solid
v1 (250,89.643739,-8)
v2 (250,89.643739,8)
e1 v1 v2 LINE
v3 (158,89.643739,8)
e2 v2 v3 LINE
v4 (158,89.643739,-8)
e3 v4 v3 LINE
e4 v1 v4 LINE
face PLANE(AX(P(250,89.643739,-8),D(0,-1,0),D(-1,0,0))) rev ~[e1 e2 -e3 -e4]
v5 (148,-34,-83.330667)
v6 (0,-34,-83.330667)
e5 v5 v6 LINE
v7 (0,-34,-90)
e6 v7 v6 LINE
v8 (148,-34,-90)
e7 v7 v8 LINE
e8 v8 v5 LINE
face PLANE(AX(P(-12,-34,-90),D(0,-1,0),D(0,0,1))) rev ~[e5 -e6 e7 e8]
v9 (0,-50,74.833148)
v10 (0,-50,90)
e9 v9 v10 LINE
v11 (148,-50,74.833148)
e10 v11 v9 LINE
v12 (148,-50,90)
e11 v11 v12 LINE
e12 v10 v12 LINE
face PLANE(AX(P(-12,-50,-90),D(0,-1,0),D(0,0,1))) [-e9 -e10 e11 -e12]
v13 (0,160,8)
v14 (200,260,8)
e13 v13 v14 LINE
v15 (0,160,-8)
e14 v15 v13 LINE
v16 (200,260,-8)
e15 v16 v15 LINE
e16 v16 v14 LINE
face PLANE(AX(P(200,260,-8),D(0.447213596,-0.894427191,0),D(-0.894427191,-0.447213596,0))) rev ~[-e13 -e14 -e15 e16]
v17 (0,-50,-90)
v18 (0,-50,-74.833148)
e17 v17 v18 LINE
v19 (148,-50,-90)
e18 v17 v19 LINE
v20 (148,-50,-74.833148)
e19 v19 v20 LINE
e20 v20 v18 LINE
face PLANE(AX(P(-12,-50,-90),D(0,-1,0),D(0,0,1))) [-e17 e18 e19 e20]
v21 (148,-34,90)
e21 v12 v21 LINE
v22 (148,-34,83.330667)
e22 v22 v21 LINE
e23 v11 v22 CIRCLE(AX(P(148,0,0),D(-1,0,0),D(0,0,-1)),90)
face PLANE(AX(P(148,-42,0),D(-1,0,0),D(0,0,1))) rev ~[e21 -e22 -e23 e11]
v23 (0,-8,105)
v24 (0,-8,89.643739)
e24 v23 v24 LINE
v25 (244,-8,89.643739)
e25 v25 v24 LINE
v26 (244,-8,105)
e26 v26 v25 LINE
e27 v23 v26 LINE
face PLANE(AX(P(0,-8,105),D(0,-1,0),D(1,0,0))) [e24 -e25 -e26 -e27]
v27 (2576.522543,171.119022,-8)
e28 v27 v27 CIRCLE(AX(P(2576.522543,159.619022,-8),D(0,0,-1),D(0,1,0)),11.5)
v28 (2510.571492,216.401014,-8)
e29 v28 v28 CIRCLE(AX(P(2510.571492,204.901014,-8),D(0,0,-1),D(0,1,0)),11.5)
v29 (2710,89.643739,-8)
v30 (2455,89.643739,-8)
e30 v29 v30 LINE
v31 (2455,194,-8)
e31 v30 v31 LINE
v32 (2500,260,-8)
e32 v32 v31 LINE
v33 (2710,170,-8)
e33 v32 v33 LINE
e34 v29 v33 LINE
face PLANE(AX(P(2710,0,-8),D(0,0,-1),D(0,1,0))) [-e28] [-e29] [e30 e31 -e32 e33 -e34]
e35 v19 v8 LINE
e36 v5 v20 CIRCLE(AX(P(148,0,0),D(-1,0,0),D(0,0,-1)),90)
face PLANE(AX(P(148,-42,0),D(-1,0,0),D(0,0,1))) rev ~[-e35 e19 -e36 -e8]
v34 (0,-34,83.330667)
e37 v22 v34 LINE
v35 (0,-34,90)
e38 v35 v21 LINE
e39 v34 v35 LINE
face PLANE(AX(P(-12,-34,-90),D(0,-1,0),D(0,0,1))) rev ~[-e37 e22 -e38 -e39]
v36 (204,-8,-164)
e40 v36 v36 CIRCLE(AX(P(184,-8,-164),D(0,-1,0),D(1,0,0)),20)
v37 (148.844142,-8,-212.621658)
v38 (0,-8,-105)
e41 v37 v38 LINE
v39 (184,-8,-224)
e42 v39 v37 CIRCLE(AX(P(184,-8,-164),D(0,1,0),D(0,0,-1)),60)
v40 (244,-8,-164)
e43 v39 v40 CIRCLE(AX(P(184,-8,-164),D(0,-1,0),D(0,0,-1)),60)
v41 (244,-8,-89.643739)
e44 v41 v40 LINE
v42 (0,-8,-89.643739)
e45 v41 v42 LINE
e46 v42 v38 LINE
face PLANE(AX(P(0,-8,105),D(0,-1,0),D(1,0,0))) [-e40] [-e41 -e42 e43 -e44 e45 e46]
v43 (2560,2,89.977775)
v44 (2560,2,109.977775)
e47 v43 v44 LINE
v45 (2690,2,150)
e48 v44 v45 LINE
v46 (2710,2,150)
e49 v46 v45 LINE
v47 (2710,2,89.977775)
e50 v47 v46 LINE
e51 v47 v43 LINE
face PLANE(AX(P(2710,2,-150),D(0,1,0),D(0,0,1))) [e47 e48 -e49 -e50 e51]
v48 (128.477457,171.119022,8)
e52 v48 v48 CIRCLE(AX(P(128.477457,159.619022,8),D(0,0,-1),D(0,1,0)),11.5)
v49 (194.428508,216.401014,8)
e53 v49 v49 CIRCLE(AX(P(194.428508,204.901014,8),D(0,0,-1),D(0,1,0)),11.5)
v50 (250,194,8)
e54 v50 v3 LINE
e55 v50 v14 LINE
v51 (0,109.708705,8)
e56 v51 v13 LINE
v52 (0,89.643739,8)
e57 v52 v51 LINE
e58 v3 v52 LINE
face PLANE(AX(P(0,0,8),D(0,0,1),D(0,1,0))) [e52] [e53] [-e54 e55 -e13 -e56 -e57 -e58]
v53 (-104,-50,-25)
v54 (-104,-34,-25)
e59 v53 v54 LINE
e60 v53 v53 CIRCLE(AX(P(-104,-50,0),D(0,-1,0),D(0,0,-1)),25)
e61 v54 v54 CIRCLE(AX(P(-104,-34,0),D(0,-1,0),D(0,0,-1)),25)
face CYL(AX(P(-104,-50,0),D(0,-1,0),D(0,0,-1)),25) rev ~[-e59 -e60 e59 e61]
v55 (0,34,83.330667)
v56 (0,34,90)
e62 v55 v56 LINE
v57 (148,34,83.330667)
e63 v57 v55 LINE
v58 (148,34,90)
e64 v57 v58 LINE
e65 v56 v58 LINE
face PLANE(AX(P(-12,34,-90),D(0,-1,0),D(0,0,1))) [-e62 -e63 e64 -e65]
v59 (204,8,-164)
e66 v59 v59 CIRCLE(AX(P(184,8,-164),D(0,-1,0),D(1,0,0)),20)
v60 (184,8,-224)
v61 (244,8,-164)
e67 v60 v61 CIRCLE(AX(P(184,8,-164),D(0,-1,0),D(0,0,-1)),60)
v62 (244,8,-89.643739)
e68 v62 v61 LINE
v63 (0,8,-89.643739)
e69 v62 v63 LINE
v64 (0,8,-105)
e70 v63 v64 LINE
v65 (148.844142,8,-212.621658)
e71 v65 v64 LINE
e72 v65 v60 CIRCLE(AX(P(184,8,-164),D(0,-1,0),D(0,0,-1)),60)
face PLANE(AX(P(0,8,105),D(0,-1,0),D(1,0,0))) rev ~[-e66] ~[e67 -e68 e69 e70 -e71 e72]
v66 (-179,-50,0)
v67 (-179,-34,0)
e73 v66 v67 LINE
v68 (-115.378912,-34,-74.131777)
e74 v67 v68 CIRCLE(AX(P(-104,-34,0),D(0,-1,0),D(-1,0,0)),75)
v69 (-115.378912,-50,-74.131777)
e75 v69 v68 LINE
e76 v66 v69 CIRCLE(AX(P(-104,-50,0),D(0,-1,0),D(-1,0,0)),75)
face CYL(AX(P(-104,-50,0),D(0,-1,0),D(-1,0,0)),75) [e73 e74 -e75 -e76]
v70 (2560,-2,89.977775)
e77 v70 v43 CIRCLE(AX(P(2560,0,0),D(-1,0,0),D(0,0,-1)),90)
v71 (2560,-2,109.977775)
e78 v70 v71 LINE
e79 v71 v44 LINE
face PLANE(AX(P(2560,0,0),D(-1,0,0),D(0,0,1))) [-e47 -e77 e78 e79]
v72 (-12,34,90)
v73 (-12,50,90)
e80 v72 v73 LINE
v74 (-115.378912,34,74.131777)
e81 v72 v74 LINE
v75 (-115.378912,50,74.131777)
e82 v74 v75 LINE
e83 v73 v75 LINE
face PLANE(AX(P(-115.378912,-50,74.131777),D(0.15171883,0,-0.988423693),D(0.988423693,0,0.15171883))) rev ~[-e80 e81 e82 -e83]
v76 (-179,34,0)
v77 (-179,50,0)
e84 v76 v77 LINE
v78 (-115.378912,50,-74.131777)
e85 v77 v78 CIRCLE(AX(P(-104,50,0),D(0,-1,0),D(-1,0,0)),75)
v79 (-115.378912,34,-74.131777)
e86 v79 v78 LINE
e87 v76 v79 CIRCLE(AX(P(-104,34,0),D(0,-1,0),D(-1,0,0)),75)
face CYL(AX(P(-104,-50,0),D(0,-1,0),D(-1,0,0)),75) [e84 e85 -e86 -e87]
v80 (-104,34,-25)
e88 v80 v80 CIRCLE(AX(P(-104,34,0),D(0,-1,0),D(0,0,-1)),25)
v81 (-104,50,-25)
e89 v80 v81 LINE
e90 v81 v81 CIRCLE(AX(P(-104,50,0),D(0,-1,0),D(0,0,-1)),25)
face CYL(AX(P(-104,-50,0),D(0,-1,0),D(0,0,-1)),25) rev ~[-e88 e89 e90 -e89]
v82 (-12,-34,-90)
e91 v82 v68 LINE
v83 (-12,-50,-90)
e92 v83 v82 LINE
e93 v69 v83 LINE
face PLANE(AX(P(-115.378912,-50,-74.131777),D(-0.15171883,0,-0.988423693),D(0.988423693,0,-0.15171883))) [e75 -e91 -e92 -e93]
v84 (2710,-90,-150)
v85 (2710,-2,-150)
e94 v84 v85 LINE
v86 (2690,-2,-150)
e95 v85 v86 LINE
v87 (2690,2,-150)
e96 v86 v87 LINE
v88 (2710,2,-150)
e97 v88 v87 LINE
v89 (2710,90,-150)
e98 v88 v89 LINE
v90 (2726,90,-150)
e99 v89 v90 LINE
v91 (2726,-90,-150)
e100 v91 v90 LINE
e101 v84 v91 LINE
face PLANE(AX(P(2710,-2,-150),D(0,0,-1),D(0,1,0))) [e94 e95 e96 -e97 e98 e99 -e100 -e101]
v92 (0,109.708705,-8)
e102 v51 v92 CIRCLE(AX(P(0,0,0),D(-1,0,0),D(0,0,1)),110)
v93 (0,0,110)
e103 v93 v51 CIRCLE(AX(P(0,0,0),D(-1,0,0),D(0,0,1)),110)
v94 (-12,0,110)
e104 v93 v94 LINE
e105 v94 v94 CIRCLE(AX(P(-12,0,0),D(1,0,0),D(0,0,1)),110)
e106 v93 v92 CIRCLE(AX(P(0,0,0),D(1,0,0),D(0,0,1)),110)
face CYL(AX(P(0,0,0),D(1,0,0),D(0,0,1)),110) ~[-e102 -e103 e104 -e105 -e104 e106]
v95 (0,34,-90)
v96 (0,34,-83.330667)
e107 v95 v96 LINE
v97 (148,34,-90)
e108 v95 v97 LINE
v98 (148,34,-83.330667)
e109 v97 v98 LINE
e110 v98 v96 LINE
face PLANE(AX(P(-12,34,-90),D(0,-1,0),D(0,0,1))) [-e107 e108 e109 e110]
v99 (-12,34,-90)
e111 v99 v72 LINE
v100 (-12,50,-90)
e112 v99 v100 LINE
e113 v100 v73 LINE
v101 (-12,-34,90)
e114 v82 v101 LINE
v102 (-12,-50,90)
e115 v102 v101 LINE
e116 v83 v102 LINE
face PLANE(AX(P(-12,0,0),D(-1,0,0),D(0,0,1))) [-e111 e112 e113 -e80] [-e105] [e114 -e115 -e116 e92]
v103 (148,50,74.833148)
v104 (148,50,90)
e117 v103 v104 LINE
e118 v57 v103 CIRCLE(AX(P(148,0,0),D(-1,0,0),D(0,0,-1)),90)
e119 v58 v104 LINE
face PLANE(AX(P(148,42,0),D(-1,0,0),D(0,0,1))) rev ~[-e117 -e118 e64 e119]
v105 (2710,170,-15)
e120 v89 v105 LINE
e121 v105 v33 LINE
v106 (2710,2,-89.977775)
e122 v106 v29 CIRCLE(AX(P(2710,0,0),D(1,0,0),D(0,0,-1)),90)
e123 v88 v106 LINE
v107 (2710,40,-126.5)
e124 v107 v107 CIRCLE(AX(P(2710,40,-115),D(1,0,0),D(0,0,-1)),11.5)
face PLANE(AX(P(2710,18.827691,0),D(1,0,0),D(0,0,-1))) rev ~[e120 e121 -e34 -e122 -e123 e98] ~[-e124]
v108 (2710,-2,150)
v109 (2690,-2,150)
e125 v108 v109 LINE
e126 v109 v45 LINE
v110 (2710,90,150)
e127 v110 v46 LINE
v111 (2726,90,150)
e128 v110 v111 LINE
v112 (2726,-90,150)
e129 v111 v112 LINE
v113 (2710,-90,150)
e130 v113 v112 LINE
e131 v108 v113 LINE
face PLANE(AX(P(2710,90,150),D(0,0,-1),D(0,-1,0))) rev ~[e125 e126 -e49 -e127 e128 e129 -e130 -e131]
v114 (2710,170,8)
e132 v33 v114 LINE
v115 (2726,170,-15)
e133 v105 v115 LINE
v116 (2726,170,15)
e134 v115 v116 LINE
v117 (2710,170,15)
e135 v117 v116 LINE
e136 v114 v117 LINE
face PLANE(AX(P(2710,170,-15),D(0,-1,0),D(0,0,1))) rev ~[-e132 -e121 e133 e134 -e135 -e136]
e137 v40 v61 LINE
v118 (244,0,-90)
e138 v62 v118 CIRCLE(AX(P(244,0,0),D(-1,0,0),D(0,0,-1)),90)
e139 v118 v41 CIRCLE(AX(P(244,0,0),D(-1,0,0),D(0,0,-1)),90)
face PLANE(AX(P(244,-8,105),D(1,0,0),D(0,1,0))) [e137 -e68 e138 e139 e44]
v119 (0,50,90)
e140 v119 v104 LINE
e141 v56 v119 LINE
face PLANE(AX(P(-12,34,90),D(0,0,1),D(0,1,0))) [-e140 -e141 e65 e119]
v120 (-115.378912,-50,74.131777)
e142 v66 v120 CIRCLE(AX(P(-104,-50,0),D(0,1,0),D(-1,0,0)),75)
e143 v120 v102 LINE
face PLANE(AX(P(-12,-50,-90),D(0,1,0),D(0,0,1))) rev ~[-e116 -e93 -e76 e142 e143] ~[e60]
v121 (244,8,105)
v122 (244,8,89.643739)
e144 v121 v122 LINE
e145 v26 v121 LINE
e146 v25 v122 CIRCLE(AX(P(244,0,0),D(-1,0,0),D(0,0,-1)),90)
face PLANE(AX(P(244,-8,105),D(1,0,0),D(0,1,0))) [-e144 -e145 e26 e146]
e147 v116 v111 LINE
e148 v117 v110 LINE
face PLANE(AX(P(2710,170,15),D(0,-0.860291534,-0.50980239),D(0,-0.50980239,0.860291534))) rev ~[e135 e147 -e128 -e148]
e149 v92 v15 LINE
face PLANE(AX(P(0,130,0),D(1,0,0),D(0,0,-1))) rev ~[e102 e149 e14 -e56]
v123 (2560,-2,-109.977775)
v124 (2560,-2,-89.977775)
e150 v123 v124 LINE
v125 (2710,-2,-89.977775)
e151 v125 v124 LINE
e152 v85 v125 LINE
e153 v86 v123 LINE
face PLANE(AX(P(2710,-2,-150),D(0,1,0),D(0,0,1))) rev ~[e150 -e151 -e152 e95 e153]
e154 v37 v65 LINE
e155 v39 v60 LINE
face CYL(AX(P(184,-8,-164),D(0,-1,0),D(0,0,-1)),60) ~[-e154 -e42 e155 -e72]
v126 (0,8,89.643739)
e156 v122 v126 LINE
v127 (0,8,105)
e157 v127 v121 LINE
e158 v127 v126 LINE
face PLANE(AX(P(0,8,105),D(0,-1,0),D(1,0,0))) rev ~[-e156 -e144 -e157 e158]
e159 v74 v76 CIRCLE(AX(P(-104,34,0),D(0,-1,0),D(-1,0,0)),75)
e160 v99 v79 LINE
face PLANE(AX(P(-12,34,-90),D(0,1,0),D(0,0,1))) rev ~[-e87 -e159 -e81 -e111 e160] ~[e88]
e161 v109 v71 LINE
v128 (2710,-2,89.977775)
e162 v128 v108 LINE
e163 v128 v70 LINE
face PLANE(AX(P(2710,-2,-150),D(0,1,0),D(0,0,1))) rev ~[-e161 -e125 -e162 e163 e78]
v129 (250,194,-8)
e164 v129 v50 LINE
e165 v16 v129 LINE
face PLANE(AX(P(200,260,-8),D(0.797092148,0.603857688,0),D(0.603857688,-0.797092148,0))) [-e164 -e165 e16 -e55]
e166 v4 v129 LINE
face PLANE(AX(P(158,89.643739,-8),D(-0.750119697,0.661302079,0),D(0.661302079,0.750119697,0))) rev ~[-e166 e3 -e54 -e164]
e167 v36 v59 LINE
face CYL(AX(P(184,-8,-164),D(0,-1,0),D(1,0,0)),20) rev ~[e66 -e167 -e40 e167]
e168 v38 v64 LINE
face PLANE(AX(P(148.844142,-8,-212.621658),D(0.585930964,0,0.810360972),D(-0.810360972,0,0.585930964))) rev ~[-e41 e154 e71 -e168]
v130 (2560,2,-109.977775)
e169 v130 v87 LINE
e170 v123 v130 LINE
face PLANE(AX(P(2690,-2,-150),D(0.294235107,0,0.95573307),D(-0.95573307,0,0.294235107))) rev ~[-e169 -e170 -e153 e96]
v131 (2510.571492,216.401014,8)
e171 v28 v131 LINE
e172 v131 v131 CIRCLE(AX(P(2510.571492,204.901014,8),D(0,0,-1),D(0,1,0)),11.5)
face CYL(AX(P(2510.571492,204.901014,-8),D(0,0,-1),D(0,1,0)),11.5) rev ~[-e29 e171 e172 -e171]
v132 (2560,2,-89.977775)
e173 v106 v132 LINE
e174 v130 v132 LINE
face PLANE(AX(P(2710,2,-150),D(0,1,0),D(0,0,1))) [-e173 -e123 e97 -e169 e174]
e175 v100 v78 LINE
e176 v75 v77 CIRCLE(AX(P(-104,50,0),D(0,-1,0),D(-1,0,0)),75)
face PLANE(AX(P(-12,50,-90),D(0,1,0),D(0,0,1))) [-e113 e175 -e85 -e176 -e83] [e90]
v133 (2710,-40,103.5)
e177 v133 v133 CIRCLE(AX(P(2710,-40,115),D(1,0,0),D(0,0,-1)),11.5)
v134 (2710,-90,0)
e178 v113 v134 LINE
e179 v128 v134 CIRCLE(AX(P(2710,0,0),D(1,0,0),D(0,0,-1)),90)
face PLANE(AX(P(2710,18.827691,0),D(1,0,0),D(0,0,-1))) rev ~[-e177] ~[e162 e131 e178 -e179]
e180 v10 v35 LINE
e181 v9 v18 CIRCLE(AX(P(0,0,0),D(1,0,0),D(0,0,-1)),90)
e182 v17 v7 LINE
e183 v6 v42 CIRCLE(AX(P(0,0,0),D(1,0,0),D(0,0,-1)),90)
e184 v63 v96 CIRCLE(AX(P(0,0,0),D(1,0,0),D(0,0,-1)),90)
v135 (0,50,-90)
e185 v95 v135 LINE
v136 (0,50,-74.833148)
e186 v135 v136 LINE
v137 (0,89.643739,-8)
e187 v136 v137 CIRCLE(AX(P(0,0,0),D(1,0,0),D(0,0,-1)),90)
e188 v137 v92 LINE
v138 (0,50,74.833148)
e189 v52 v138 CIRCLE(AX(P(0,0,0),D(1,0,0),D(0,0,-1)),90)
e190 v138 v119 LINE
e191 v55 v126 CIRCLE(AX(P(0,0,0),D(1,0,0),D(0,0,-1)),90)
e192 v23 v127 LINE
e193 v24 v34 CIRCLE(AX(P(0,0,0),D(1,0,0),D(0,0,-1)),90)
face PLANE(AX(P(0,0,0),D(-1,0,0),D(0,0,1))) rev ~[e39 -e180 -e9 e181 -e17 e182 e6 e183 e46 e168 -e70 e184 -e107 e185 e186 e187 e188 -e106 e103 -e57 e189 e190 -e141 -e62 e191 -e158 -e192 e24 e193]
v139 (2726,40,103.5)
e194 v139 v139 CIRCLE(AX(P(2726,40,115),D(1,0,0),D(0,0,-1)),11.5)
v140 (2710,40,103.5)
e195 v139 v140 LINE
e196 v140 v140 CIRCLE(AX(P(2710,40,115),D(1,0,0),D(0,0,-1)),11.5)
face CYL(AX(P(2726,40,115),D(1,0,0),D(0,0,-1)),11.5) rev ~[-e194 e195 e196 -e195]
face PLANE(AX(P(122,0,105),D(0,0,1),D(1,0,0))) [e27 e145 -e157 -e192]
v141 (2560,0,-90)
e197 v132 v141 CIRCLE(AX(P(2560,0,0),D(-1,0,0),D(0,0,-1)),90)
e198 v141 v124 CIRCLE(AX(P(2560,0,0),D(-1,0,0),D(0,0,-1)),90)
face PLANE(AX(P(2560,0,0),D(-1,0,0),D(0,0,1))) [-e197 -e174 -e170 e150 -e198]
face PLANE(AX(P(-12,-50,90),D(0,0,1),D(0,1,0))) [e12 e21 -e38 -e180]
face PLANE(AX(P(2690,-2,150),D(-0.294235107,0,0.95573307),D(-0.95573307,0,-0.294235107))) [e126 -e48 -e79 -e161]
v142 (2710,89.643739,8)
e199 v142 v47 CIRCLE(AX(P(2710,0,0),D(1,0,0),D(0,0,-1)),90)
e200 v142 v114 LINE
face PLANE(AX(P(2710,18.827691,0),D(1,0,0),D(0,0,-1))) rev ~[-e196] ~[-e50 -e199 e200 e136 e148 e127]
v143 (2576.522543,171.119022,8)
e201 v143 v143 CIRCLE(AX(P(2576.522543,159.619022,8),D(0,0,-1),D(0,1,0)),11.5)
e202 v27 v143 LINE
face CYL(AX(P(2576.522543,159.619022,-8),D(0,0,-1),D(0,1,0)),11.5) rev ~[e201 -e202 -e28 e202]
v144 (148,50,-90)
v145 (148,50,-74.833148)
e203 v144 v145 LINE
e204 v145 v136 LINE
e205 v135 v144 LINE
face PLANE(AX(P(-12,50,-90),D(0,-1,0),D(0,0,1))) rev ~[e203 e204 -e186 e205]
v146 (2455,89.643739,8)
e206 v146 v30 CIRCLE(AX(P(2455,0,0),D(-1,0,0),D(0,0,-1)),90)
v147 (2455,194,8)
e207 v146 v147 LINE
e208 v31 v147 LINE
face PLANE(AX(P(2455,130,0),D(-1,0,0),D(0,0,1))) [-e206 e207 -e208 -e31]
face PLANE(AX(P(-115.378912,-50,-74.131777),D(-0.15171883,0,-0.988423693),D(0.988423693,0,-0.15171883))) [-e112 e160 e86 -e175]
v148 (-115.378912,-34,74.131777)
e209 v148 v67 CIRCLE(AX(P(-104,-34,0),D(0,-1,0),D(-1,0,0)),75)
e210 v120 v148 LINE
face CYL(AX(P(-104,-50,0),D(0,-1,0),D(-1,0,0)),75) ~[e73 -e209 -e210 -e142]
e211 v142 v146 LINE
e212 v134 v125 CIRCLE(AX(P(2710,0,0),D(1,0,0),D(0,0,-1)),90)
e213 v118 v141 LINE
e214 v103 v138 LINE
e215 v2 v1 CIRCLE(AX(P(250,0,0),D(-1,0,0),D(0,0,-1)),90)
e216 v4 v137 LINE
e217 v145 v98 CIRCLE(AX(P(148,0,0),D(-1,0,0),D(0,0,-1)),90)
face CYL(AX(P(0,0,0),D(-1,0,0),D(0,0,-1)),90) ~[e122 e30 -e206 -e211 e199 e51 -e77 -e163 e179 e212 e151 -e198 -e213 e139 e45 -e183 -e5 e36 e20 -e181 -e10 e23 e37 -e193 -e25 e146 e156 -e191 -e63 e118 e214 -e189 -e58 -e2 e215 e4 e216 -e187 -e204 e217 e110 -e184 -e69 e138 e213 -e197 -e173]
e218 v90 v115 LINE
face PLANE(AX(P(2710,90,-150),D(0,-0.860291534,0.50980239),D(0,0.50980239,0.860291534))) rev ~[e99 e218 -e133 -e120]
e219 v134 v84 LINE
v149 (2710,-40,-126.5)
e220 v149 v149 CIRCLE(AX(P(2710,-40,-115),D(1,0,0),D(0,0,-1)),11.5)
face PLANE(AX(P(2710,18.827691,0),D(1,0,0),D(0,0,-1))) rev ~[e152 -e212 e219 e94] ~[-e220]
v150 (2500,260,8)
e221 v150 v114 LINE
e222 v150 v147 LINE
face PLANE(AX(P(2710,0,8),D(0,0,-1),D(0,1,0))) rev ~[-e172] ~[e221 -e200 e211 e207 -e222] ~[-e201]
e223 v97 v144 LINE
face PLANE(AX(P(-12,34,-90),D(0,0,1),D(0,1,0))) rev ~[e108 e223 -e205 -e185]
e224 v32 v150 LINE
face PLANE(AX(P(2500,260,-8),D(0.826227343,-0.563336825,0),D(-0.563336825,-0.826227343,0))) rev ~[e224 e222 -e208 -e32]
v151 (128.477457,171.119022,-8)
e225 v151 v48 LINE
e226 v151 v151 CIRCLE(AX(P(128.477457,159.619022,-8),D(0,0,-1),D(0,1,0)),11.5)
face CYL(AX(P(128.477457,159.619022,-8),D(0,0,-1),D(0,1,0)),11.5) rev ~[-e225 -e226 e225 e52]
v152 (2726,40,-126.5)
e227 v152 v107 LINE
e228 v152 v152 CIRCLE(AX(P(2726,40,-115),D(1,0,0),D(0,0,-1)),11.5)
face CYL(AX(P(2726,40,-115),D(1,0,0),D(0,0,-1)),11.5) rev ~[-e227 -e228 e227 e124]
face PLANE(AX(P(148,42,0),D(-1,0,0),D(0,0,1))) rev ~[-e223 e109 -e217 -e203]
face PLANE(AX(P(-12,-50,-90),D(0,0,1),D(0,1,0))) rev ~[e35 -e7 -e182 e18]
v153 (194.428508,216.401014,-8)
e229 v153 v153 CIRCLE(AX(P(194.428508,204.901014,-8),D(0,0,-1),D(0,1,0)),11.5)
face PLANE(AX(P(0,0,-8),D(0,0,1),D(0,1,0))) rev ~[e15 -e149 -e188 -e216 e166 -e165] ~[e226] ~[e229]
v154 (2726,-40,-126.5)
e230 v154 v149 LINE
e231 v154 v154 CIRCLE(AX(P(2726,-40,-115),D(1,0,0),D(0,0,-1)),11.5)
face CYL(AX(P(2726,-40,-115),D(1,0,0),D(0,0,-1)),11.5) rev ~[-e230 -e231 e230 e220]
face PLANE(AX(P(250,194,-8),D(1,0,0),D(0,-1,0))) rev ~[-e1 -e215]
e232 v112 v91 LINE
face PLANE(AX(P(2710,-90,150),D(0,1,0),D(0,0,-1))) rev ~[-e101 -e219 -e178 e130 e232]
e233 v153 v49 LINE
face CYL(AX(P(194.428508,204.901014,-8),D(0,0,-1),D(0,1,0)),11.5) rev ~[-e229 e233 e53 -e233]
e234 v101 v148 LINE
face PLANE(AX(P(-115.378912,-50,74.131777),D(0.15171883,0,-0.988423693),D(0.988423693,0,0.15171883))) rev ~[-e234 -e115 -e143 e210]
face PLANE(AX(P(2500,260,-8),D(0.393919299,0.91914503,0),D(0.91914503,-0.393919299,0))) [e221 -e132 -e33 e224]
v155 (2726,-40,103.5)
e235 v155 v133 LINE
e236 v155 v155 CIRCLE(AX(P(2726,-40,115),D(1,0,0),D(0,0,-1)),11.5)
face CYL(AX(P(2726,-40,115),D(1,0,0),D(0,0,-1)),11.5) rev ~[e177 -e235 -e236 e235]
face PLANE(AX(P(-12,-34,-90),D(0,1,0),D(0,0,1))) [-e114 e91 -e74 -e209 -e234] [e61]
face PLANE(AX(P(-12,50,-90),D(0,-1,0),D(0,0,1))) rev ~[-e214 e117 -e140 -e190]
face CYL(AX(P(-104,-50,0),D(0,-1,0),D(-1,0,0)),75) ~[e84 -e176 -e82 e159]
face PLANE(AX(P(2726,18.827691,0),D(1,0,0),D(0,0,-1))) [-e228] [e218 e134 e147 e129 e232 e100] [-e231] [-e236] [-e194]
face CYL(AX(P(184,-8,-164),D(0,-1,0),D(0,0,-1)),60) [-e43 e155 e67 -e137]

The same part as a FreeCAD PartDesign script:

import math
import FreeCAD as App
import Part
import Sketcher

V = App.Vector
Q = App.Units.Quantity


def add_polygon(sketch, points):
    """Adds a closed chain of lines whose ends are joined by coincident constraints."""
    first, n = sketch.GeometryCount, len(points)
    for a, b in zip(points, points[1:] + points[:1]):
        sketch.addGeometry(Part.LineSegment(App.Vector(*a, 0), App.Vector(*b, 0)), False)
    for i in range(n):
        sketch.addConstraint(Sketcher.Constraint("Coincident", first + i, 2, first + (i + 1) % n, 1))

doc = App.newDocument("Part")
body = doc.addObject("PartDesign::Body", "Body")

# Sketch on YZ plane
sketch1 = body.newObject("Sketcher::SketchObject", "Sketch")
sketch1.AttachmentSupport = (doc.getObject("YZ_Plane"), [""])
sketch1.MapMode = "FlatFace"
sketch1.addGeometry(Part.Circle(V(0, 0, 0), V(0, 0, 1), 90), False)
sketch1.addConstraint(Sketcher.Constraint("Coincident", 0, 3, -1, 1))
sketch1.addConstraint(Sketcher.Constraint("Diameter", 0, Q("180 mm")))
pad1 = body.newObject("PartDesign::Pad", "Pad")
pad1.Profile = sketch1
pad1.Length = 2710

# Sketch on YZ plane
sketch2 = body.newObject("Sketcher::SketchObject", "Sketch001")
sketch2.AttachmentSupport = (doc.getObject("YZ_Plane"), [""])
sketch2.MapMode = "FlatFace"
sketch2.AttachmentOffset = App.Placement(V(0, 0, 2710), App.Rotation())
add_polygon(sketch2, [(-90, 150), (-90, -150), (90, -150), (170, -15), (170, 15), (90, 150)])  # lines 0-5
sketch2.addConstraint(Sketcher.Constraint("Vertical", 0))
sketch2.addConstraint(Sketcher.Constraint("Horizontal", 1))
sketch2.addConstraint(Sketcher.Constraint("Vertical", 3))
sketch2.addConstraint(Sketcher.Constraint("Horizontal", 5))
sketch2.addConstraint(Sketcher.Constraint("Symmetric", 0, 2, 4, 2, -1, 1))
sketch2.addConstraint(Sketcher.Constraint("Vertical", 1, 2, 4, 2))
sketch2.addConstraint(Sketcher.Constraint("Equal", 2, 4))
sketch2.addConstraint(Sketcher.Constraint("DistanceX", 1, 1, 1, 2, Q("180 mm")))
sketch2.addConstraint(Sketcher.Constraint("DistanceY", 0, 2, 0, 1, Q("300 mm")))
sketch2.addConstraint(Sketcher.Constraint("DistanceY", 3, 1, 3, 2, Q("30 mm")))
sketch2.addConstraint(Sketcher.Constraint("DistanceX", -1, 1, 2, 2, Q("170 mm")))
pad2 = body.newObject("PartDesign::Pad", "Pad001")
pad2.Profile = sketch2
pad2.Length = 16

# Sketch on YZ plane
sketch3 = body.newObject("Sketcher::SketchObject", "Sketch002")
sketch3.AttachmentSupport = (doc.getObject("YZ_Plane"), [""])
sketch3.MapMode = "FlatFace"
sketch3.AttachmentOffset = App.Placement(V(0, 0, 2726), App.Rotation())
sketch3.addGeometry(Part.Circle(V(-40, -115, 0), V(0, 0, 1), 12), False)
sketch3.addGeometry(Part.Circle(V(40, -115, 0), V(0, 0, 1), 12), False)
sketch3.addGeometry(Part.Circle(V(40, 115, 0), V(0, 0, 1), 12), False)
sketch3.addGeometry(Part.Circle(V(-40, 115, 0), V(0, 0, 1), 12), False)
sketch3.addConstraint(Sketcher.Constraint("Equal", 0, 1))
sketch3.addConstraint(Sketcher.Constraint("Equal", 1, 2))
sketch3.addConstraint(Sketcher.Constraint("Equal", 2, 3))
sketch3.addConstraint(Sketcher.Constraint("Symmetric", 0, 3, 2, 3, -1, 1))
sketch3.addConstraint(Sketcher.Constraint("Symmetric", 1, 3, 3, 3, -1, 1))
sketch3.addConstraint(Sketcher.Constraint("Symmetric", 0, 3, 1, 3, -2))
sketch3.addConstraint(Sketcher.Constraint("Diameter", 0, Q("23 mm")))
sketch3.addConstraint(Sketcher.Constraint("DistanceX", 0, 3, -1, 1, Q("40 mm")))
sketch3.addConstraint(Sketcher.Constraint("DistanceY", 0, 3, -1, 1, Q("115 mm")))
pocket1 = body.newObject("PartDesign::Pocket", "Pocket")
pocket1.Profile = sketch3
pocket1.Type = "ThroughAll"

# Sketch on YZ plane
sketch4 = body.newObject("Sketcher::SketchObject", "Sketch003")
sketch4.AttachmentSupport = (doc.getObject("YZ_Plane"), [""])
sketch4.MapMode = "FlatFace"
sketch4.AttachmentOffset = App.Placement(V(0, 0, 2710), App.Rotation())
add_polygon(sketch4, [(2, -150), (-2, -150), (-2, 150), (2, 150)])  # lines 0-3
sketch4.addConstraint(Sketcher.Constraint("Horizontal", 0))
sketch4.addConstraint(Sketcher.Constraint("Vertical", 1))
sketch4.addConstraint(Sketcher.Constraint("Horizontal", 2))
sketch4.addConstraint(Sketcher.Constraint("Vertical", 3))
sketch4.addConstraint(Sketcher.Constraint("Symmetric", 0, 2, 2, 2, -1, 1))
sketch4.addConstraint(Sketcher.Constraint("DistanceX", 0, 2, 0, 1, Q("4 mm")))
sketch4.addConstraint(Sketcher.Constraint("DistanceY", 1, 1, 1, 2, Q("300 mm")))
pad3 = body.newObject("PartDesign::Pad", "Pad002")
pad3.Profile = sketch4
pad3.Length = 150
pad3.Reversed = True

# Sketch on XZ plane
sketch5 = body.newObject("Sketcher::SketchObject", "Sketch004")
sketch5.AttachmentSupport = (doc.getObject("XZ_Plane"), [""])
sketch5.MapMode = "FlatFace"
sketch5.AttachmentOffset = App.Placement(V(0, 0, 2), App.Rotation())
add_polygon(sketch5, [(2560, 110), (2690, 150), (2560, 150)])  # lines 0-2
add_polygon(sketch5, [(2560, -110), (2560, -150), (2690, -150)])  # lines 3-5
sketch5.addConstraint(Sketcher.Constraint("Horizontal", 1))
sketch5.addConstraint(Sketcher.Constraint("Vertical", 2))
sketch5.addConstraint(Sketcher.Constraint("Vertical", 3))
sketch5.addConstraint(Sketcher.Constraint("Horizontal", 4))
sketch5.addConstraint(Sketcher.Constraint("Symmetric", 1, 2, 3, 2, -1))
sketch5.addConstraint(Sketcher.Constraint("Vertical", 0, 2, 4, 2))
sketch5.addConstraint(Sketcher.Constraint("Equal", 2, 3))
sketch5.addConstraint(Sketcher.Constraint("DistanceX", 1, 2, 1, 1, Q("130 mm")))
sketch5.addConstraint(Sketcher.Constraint("DistanceX", -1, 1, 0, 2, Q("2690 mm")))
sketch5.addConstraint(Sketcher.Constraint("DistanceY", -1, 1, 0, 2, Q("150 mm")))
sketch5.addConstraint(Sketcher.Constraint("DistanceY", 2, 2, 2, 1, Q("40.022225 mm")))
pocket2 = body.newObject("PartDesign::Pocket", "Pocket001")
pocket2.Profile = sketch5
pocket2.Type = "ThroughAll"

# Sketch on YZ plane
sketch6 = body.newObject("Sketcher::SketchObject", "Sketch005")
sketch6.AttachmentSupport = (doc.getObject("YZ_Plane"), [""])
sketch6.MapMode = "FlatFace"
sketch6.AttachmentOffset = App.Placement(V(0, 0, 2710), App.Rotation())
add_polygon(sketch6, [(260, -8), (0, -8), (0, 8), (260, 8)])  # lines 0-3
sketch6.addConstraint(Sketcher.Constraint("Horizontal", 0))
sketch6.addConstraint(Sketcher.Constraint("Vertical", 1))
sketch6.addConstraint(Sketcher.Constraint("Horizontal", 2))
sketch6.addConstraint(Sketcher.Constraint("Vertical", 3))
sketch6.addConstraint(Sketcher.Constraint("Symmetric", 0, 2, 1, 2, -1, 1))
sketch6.addConstraint(Sketcher.Constraint("DistanceX", 0, 2, 0, 1, Q("260 mm")))
sketch6.addConstraint(Sketcher.Constraint("DistanceY", 1, 1, 1, 2, Q("16 mm")))
pad4 = body.newObject("PartDesign::Pad", "Pad003")
pad4.Profile = sketch6
pad4.Length = 255
pad4.Reversed = True

# Sketch on XY plane
sketch7 = body.newObject("Sketcher::SketchObject", "Sketch006")
sketch7.AttachmentSupport = (doc.getObject("XY_Plane"), [""])
sketch7.MapMode = "FlatFace"
sketch7.AttachmentOffset = App.Placement(V(0, 0, -8), App.Rotation())
add_polygon(sketch7, [(2500, 260), (2710, 260), (2710, 170)])  # lines 0-2
sketch7.addConstraint(Sketcher.Constraint("Horizontal", 0))
sketch7.addConstraint(Sketcher.Constraint("Vertical", 1))
sketch7.addConstraint(Sketcher.Constraint("DistanceX", 0, 1, 0, 2, Q("210 mm")))
sketch7.addConstraint(Sketcher.Constraint("DistanceY", 1, 2, 1, 1, Q("90 mm")))
sketch7.addConstraint(Sketcher.Constraint("DistanceX", -1, 1, 0, 2, Q("2710 mm")))
sketch7.addConstraint(Sketcher.Constraint("DistanceY", -1, 1, 0, 2, Q("260 mm")))
pocket3 = body.newObject("PartDesign::Pocket", "Pocket002")
pocket3.Profile = sketch7
pocket3.Type = "ThroughAll"
pocket3.Reversed = True

# Sketch on XY plane
sketch8 = body.newObject("Sketcher::SketchObject", "Sketch007")
sketch8.AttachmentSupport = (doc.getObject("XY_Plane"), [""])
sketch8.MapMode = "FlatFace"
sketch8.AttachmentOffset = App.Placement(V(0, 0, -8), App.Rotation())
add_polygon(sketch8, [(2500, 260), (2455, 194), (2455, 260)])  # lines 0-2
sketch8.addConstraint(Sketcher.Constraint("Vertical", 1))
sketch8.addConstraint(Sketcher.Constraint("Horizontal", 2))
sketch8.addConstraint(Sketcher.Constraint("DistanceX", 2, 1, 2, 2, Q("45 mm")))
sketch8.addConstraint(Sketcher.Constraint("DistanceY", 1, 1, 1, 2, Q("66 mm")))
sketch8.addConstraint(Sketcher.Constraint("DistanceX", -1, 1, 0, 2, Q("2455 mm")))
sketch8.addConstraint(Sketcher.Constraint("DistanceY", -1, 1, 0, 2, Q("194 mm")))
pocket4 = body.newObject("PartDesign::Pocket", "Pocket003")
pocket4.Profile = sketch8
pocket4.Type = "ThroughAll"
pocket4.Reversed = True

# Sketch on XY plane
sketch9 = body.newObject("Sketcher::SketchObject", "Sketch008")
sketch9.AttachmentSupport = (doc.getObject("XY_Plane"), [""])
sketch9.MapMode = "FlatFace"
sketch9.AttachmentOffset = App.Placement(V(0, 0, -8), App.Rotation())
sketch9.addGeometry(Part.Circle(V(2577, 160, 0), V(0, 0, 1), 12), False)
sketch9.addGeometry(Part.Circle(V(2511, 205, 0), V(0, 0, 1), 12), False)
sketch9.addConstraint(Sketcher.Constraint("Equal", 0, 1))
sketch9.addConstraint(Sketcher.Constraint("Diameter", 0, Q("23 mm")))
sketch9.addConstraint(Sketcher.Constraint("DistanceY", -1, 1, 0, 3, Q("159.619022 mm")))
sketch9.addConstraint(Sketcher.Constraint("DistanceX", -1, 1, 1, 3, Q("2510.571492 mm")))
sketch9.addConstraint(Sketcher.Constraint("DistanceX", 1, 3, 0, 3, Q("65.951052 mm")))
sketch9.addConstraint(Sketcher.Constraint("DistanceY", 0, 3, 1, 3, Q("45.281992 mm")))
pocket5 = body.newObject("PartDesign::Pocket", "Pocket004")
pocket5.Profile = sketch9
pocket5.Type = "ThroughAll"
pocket5.Reversed = True

# Sketch on YZ plane
sketch10 = body.newObject("Sketcher::SketchObject", "Sketch009")
sketch10.AttachmentSupport = (doc.getObject("YZ_Plane"), [""])
sketch10.MapMode = "FlatFace"
sketch10.addGeometry(Part.Circle(V(0, 0, 0), V(0, 0, 1), 110), False)
sketch10.addConstraint(Sketcher.Constraint("Coincident", 0, 3, -1, 1))
sketch10.addConstraint(Sketcher.Constraint("Diameter", 0, Q("220 mm")))
pad5 = body.newObject("PartDesign::Pad", "Pad004")
pad5.Profile = sketch10
pad5.Length = 12
pad5.Reversed = True

# Sketch on YZ plane
sketch11 = body.newObject("Sketcher::SketchObject", "Sketch010")
sketch11.AttachmentSupport = (doc.getObject("YZ_Plane"), [""])
sketch11.MapMode = "FlatFace"
add_polygon(sketch11, [(260, 8), (0, 8), (0, -8), (260, -8)])  # lines 0-3
sketch11.addConstraint(Sketcher.Constraint("Horizontal", 0))
sketch11.addConstraint(Sketcher.Constraint("Vertical", 1))
sketch11.addConstraint(Sketcher.Constraint("Horizontal", 2))
sketch11.addConstraint(Sketcher.Constraint("Vertical", 3))
sketch11.addConstraint(Sketcher.Constraint("Symmetric", 0, 2, 1, 2, -1, 1))
sketch11.addConstraint(Sketcher.Constraint("DistanceX", 0, 2, 0, 1, Q("260 mm")))
sketch11.addConstraint(Sketcher.Constraint("DistanceY", 1, 2, 1, 1, Q("16 mm")))
pad6 = body.newObject("PartDesign::Pad", "Pad005")
pad6.Profile = sketch11
pad6.Length = 250

# Sketch on XY plane
sketch12 = body.newObject("Sketcher::SketchObject", "Sketch011")
sketch12.AttachmentSupport = (doc.getObject("XY_Plane"), [""])
sketch12.MapMode = "FlatFace"
sketch12.AttachmentOffset = App.Placement(V(0, 0, -8), App.Rotation())
add_polygon(sketch12, [(250, 194), (250, 90), (158, 90)])  # lines 0-2
add_polygon(sketch12, [(200, 260), (0, 160), (0, 260)])  # lines 3-5
sketch12.addConstraint(Sketcher.Constraint("Vertical", 0))
sketch12.addConstraint(Sketcher.Constraint("Horizontal", 1))
sketch12.addConstraint(Sketcher.Constraint("Vertical", 4))
sketch12.addConstraint(Sketcher.Constraint("Horizontal", 5))
sketch12.addConstraint(Sketcher.Constraint("PointOnObject", 3, 2, -2))
sketch12.addConstraint(Sketcher.Constraint("DistanceX", 1, 2, 1, 1, Q("92 mm")))
sketch12.addConstraint(Sketcher.Constraint("DistanceX", 5, 1, 5, 2, Q("200 mm")))
sketch12.addConstraint(Sketcher.Constraint("DistanceY", 4, 1, 4, 2, Q("100 mm")))
sketch12.addConstraint(Sketcher.Constraint("DistanceX", -1, 1, 0, 2, Q("250 mm")))
sketch12.addConstraint(Sketcher.Constraint("DistanceY", -1, 1, 2, 2, Q("194 mm")))
sketch12.addConstraint(Sketcher.Constraint("DistanceY", -1, 1, 3, 2, Q("160 mm")))
sketch12.addConstraint(Sketcher.Constraint("DistanceY", 0, 2, 0, 1, Q("104.356261 mm")))
pocket6 = body.newObject("PartDesign::Pocket", "Pocket005")
pocket6.Profile = sketch12
pocket6.Type = "ThroughAll"
pocket6.Reversed = True

# Sketch on XY plane
sketch13 = body.newObject("Sketcher::SketchObject", "Sketch012")
sketch13.AttachmentSupport = (doc.getObject("XY_Plane"), [""])
sketch13.MapMode = "FlatFace"
sketch13.AttachmentOffset = App.Placement(V(0, 0, -8), App.Rotation())
add_polygon(sketch13, [(200, 260), (250, 260), (250, 194)])  # lines 0-2
sketch13.addConstraint(Sketcher.Constraint("Horizontal", 0))
sketch13.addConstraint(Sketcher.Constraint("Vertical", 1))
sketch13.addConstraint(Sketcher.Constraint("DistanceX", 0, 1, 0, 2, Q("50 mm")))
sketch13.addConstraint(Sketcher.Constraint("DistanceY", 1, 2, 1, 1, Q("66 mm")))
sketch13.addConstraint(Sketcher.Constraint("DistanceX", -1, 1, 0, 2, Q("250 mm")))
sketch13.addConstraint(Sketcher.Constraint("DistanceY", -1, 1, 0, 2, Q("260 mm")))
pocket7 = body.newObject("PartDesign::Pocket", "Pocket006")
pocket7.Profile = sketch13
pocket7.Type = "ThroughAll"
pocket7.Reversed = True

# Sketch on XY plane
sketch14 = body.newObject("Sketcher::SketchObject", "Sketch013")
sketch14.AttachmentSupport = (doc.getObject("XY_Plane"), [""])
sketch14.MapMode = "FlatFace"
sketch14.AttachmentOffset = App.Placement(V(0, 0, -8), App.Rotation())
sketch14.addGeometry(Part.Circle(V(128, 160, 0), V(0, 0, 1), 12), False)
sketch14.addGeometry(Part.Circle(V(194, 205, 0), V(0, 0, 1), 12), False)
sketch14.addConstraint(Sketcher.Constraint("Equal", 0, 1))
sketch14.addConstraint(Sketcher.Constraint("Diameter", 0, Q("23 mm")))
sketch14.addConstraint(Sketcher.Constraint("DistanceY", -1, 1, 0, 3, Q("159.619022 mm")))
sketch14.addConstraint(Sketcher.Constraint("DistanceX", -1, 1, 1, 3, Q("194.428508 mm")))
sketch14.addConstraint(Sketcher.Constraint("DistanceX", 0, 3, 1, 3, Q("65.951052 mm")))
sketch14.addConstraint(Sketcher.Constraint("DistanceY", 0, 3, 1, 3, Q("45.281992 mm")))
pocket8 = body.newObject("PartDesign::Pocket", "Pocket007")
pocket8.Profile = sketch14
pocket8.Type = "ThroughAll"
pocket8.Reversed = True

# Sketch on YZ plane
sketch15 = body.newObject("Sketcher::SketchObject", "Sketch014")
sketch15.AttachmentSupport = (doc.getObject("YZ_Plane"), [""])
sketch15.MapMode = "FlatFace"
sketch15.AttachmentOffset = App.Placement(V(0, 0, -12), App.Rotation())
add_polygon(sketch15, [(50, -90), (34, -90), (34, 90), (50, 90)])  # lines 0-3
add_polygon(sketch15, [(-34, -90), (-50, -90), (-50, 90), (-34, 90)])  # lines 4-7
sketch15.addConstraint(Sketcher.Constraint("Horizontal", 0))
sketch15.addConstraint(Sketcher.Constraint("Vertical", 1))
sketch15.addConstraint(Sketcher.Constraint("Horizontal", 2))
sketch15.addConstraint(Sketcher.Constraint("Vertical", 3))
sketch15.addConstraint(Sketcher.Constraint("Horizontal", 4))
sketch15.addConstraint(Sketcher.Constraint("Vertical", 5))
sketch15.addConstraint(Sketcher.Constraint("Horizontal", 6))
sketch15.addConstraint(Sketcher.Constraint("Vertical", 7))
sketch15.addConstraint(Sketcher.Constraint("Symmetric", 2, 2, 4, 2, -1, 1))
sketch15.addConstraint(Sketcher.Constraint("Symmetric", 0, 2, 6, 2, -1, 1))
sketch15.addConstraint(Sketcher.Constraint("Horizontal", 3, 2, 4, 2))
sketch15.addConstraint(Sketcher.Constraint("DistanceX", 0, 2, 0, 1, Q("16 mm")))
sketch15.addConstraint(Sketcher.Constraint("DistanceY", 1, 1, 1, 2, Q("180 mm")))
sketch15.addConstraint(Sketcher.Constraint("DistanceX", -1, 1, 0, 2, Q("34 mm")))
pad7 = body.newObject("PartDesign::Pad", "Pad006")
pad7.Profile = sketch15
pad7.Length = 167
pad7.Reversed = True

# Sketch on XZ plane
sketch16 = body.newObject("Sketcher::SketchObject", "Sketch015")
sketch16.AttachmentSupport = (doc.getObject("XZ_Plane"), [""])
sketch16.MapMode = "FlatFace"
sketch16.AttachmentOffset = App.Placement(V(0, 0, 50), App.Rotation())
sketch16.addGeometry(Part.LineSegment(V(-115, 74, 0), V(-12, 90, 0)), False)
sketch16.addGeometry(Part.LineSegment(V(-12, 90, 0), V(-179, 90, 0)), False)
sketch16.addGeometry(Part.LineSegment(V(-179, 90, 0), V(-179, 0, 0)), False)
sketch16.addGeometry(Part.ArcOfCircle(Part.Circle(V(-104, 0, 0), V(0, 0, 1), 75), math.radians(99), math.radians(180)), False)
sketch16.addConstraint(Sketcher.Constraint("Coincident", 0, 2, 1, 1))
sketch16.addConstraint(Sketcher.Constraint("Coincident", 1, 2, 2, 1))
sketch16.addConstraint(Sketcher.Constraint("Tangent", 2, 2, 3, 2))
sketch16.addConstraint(Sketcher.Constraint("Tangent", 3, 1, 0, 1))
sketch16.addConstraint(Sketcher.Constraint("Horizontal", 1))
sketch16.addConstraint(Sketcher.Constraint("Vertical", 2))
sketch16.addConstraint(Sketcher.Constraint("PointOnObject", 3, 3, -1))
sketch16.addConstraint(Sketcher.Constraint("Radius", 3, Q("75 mm")))
sketch16.addConstraint(Sketcher.Constraint("DistanceX", 1, 2, 1, 1, Q("167 mm")))
sketch16.addConstraint(Sketcher.Constraint("DistanceY", 2, 2, 2, 1, Q("90 mm")))
sketch16.addConstraint(Sketcher.Constraint("DistanceX", 3, 3, -1, 1, Q("104 mm")))
pocket9 = body.newObject("PartDesign::Pocket", "Pocket008")
pocket9.Profile = sketch16
pocket9.Type = "ThroughAll"

# Sketch on XZ plane
sketch17 = body.newObject("Sketcher::SketchObject", "Sketch016")
sketch17.AttachmentSupport = (doc.getObject("XZ_Plane"), [""])
sketch17.MapMode = "FlatFace"
sketch17.AttachmentOffset = App.Placement(V(0, 0, 50), App.Rotation())
sketch17.addGeometry(Part.LineSegment(V(-12, -90, 0), V(-115, -74, 0)), False)
sketch17.addGeometry(Part.ArcOfCircle(Part.Circle(V(-104, 0, 0), V(0, 0, 1), 75), math.radians(-180), math.radians(-99)), False)
sketch17.addGeometry(Part.LineSegment(V(-179, 0, 0), V(-179, -90, 0)), False)
sketch17.addGeometry(Part.LineSegment(V(-179, -90, 0), V(-12, -90, 0)), False)
sketch17.addConstraint(Sketcher.Constraint("Tangent", 0, 2, 1, 2))
sketch17.addConstraint(Sketcher.Constraint("Tangent", 1, 1, 2, 1))
sketch17.addConstraint(Sketcher.Constraint("Coincident", 2, 2, 3, 1))
sketch17.addConstraint(Sketcher.Constraint("Coincident", 3, 2, 0, 1))
sketch17.addConstraint(Sketcher.Constraint("Vertical", 2))
sketch17.addConstraint(Sketcher.Constraint("Horizontal", 3))
sketch17.addConstraint(Sketcher.Constraint("PointOnObject", 1, 3, -1))
sketch17.addConstraint(Sketcher.Constraint("Radius", 1, Q("75 mm")))
sketch17.addConstraint(Sketcher.Constraint("DistanceX", 3, 1, 3, 2, Q("167 mm")))
sketch17.addConstraint(Sketcher.Constraint("DistanceY", 2, 2, 2, 1, Q("90 mm")))
sketch17.addConstraint(Sketcher.Constraint("DistanceX", 1, 3, -1, 1, Q("104 mm")))
pocket10 = body.newObject("PartDesign::Pocket", "Pocket009")
pocket10.Profile = sketch17
pocket10.Type = "ThroughAll"

# Sketch on XZ plane
sketch18 = body.newObject("Sketcher::SketchObject", "Sketch017")
sketch18.AttachmentSupport = (doc.getObject("XZ_Plane"), [""])
sketch18.MapMode = "FlatFace"
sketch18.AttachmentOffset = App.Placement(V(0, 0, 50), App.Rotation())
sketch18.addGeometry(Part.Circle(V(-104, 0, 0), V(0, 0, 1), 25), False)
sketch18.addConstraint(Sketcher.Constraint("PointOnObject", 0, 3, -1))
sketch18.addConstraint(Sketcher.Constraint("Diameter", 0, Q("50 mm")))
sketch18.addConstraint(Sketcher.Constraint("DistanceX", 0, 3, -1, 1, Q("104 mm")))
pocket11 = body.newObject("PartDesign::Pocket", "Pocket010")
pocket11.Profile = sketch18
pocket11.Type = "ThroughAll"

# Sketch on YZ plane
sketch19 = body.newObject("Sketcher::SketchObject", "Sketch018")
sketch19.AttachmentSupport = (doc.getObject("YZ_Plane"), [""])
sketch19.MapMode = "FlatFace"
sketch19.AttachmentOffset = App.Placement(V(0, 0, -12), App.Rotation())
add_polygon(sketch19, [(50, -90), (34, -90), (34, 90), (50, 90)])  # lines 0-3
add_polygon(sketch19, [(-34, -90), (-50, -90), (-50, 90), (-34, 90)])  # lines 4-7
sketch19.addConstraint(Sketcher.Constraint("Horizontal", 0))
sketch19.addConstraint(Sketcher.Constraint("Vertical", 1))
sketch19.addConstraint(Sketcher.Constraint("Horizontal", 2))
sketch19.addConstraint(Sketcher.Constraint("Vertical", 3))
sketch19.addConstraint(Sketcher.Constraint("Horizontal", 4))
sketch19.addConstraint(Sketcher.Constraint("Vertical", 5))
sketch19.addConstraint(Sketcher.Constraint("Horizontal", 6))
sketch19.addConstraint(Sketcher.Constraint("Vertical", 7))
sketch19.addConstraint(Sketcher.Constraint("Symmetric", 2, 2, 4, 2, -1, 1))
sketch19.addConstraint(Sketcher.Constraint("Symmetric", 0, 2, 6, 2, -1, 1))
sketch19.addConstraint(Sketcher.Constraint("Horizontal", 3, 2, 4, 2))
sketch19.addConstraint(Sketcher.Constraint("DistanceX", 0, 2, 0, 1, Q("16 mm")))
sketch19.addConstraint(Sketcher.Constraint("DistanceY", 1, 1, 1, 2, Q("180 mm")))
sketch19.addConstraint(Sketcher.Constraint("DistanceX", -1, 1, 0, 2, Q("34 mm")))
pad8 = body.newObject("PartDesign::Pad", "Pad007")
pad8.Profile = sketch19
pad8.Length = 160

# Sketch on XY plane
sketch20 = body.newObject("Sketcher::SketchObject", "Sketch019")
sketch20.AttachmentSupport = (doc.getObject("XY_Plane"), [""])
sketch20.MapMode = "FlatFace"
sketch20.AttachmentOffset = App.Placement(V(0, 0, 105), App.Rotation())
add_polygon(sketch20, [(0, 8), (0, -8), (244, -8), (244, 8)])  # lines 0-3
sketch20.addConstraint(Sketcher.Constraint("Vertical", 0))
sketch20.addConstraint(Sketcher.Constraint("Horizontal", 1))
sketch20.addConstraint(Sketcher.Constraint("Vertical", 2))
sketch20.addConstraint(Sketcher.Constraint("Horizontal", 3))
sketch20.addConstraint(Sketcher.Constraint("Symmetric", 0, 2, 3, 2, -1, 1))
sketch20.addConstraint(Sketcher.Constraint("DistanceX", 1, 1, 1, 2, Q("244 mm")))
sketch20.addConstraint(Sketcher.Constraint("DistanceY", 0, 2, 0, 1, Q("16 mm")))
pad9 = body.newObject("PartDesign::Pad", "Pad008")
pad9.Profile = sketch20
pad9.Length = 329
pad9.Reversed = True

# Sketch on XZ plane
sketch21 = body.newObject("Sketcher::SketchObject", "Sketch020")
sketch21.AttachmentSupport = (doc.getObject("XZ_Plane"), [""])
sketch21.MapMode = "FlatFace"
sketch21.AttachmentOffset = App.Placement(V(0, 0, 8), App.Rotation())
sketch21.addGeometry(Part.LineSegment(V(244, -224, 0), V(244, -164, 0)), False)
sketch21.addGeometry(Part.ArcOfCircle(Part.Circle(V(184, -164, 0), V(0, 0, 1), 60), math.radians(-90), math.radians(0)), False)
sketch21.addGeometry(Part.LineSegment(V(184, -224, 0), V(244, -224, 0)), False)
sketch21.addConstraint(Sketcher.Constraint("Tangent", 0, 2, 1, 2))
sketch21.addConstraint(Sketcher.Constraint("Tangent", 1, 1, 2, 1))
sketch21.addConstraint(Sketcher.Constraint("Coincident", 2, 2, 0, 1))
sketch21.addConstraint(Sketcher.Constraint("Vertical", 0))
sketch21.addConstraint(Sketcher.Constraint("Horizontal", 2))
sketch21.addConstraint(Sketcher.Constraint("Radius", 1, Q("60 mm")))
sketch21.addConstraint(Sketcher.Constraint("DistanceX", -1, 1, 1, 3, Q("184 mm")))
sketch21.addConstraint(Sketcher.Constraint("DistanceY", 1, 3, -1, 1, Q("164 mm")))
pocket12 = body.newObject("PartDesign::Pocket", "Pocket011")
pocket12.Profile = sketch21
pocket12.Type = "ThroughAll"

# Sketch on XZ plane
sketch22 = body.newObject("Sketcher::SketchObject", "Sketch021")
sketch22.AttachmentSupport = (doc.getObject("XZ_Plane"), [""])
sketch22.MapMode = "FlatFace"
sketch22.AttachmentOffset = App.Placement(V(0, 0, 8), App.Rotation())
sketch22.addGeometry(Part.LineSegment(V(149, -213, 0), V(0, -105, 0)), False)
sketch22.addGeometry(Part.LineSegment(V(0, -105, 0), V(0, -224, 0)), False)
sketch22.addGeometry(Part.LineSegment(V(0, -224, 0), V(184, -224, 0)), False)
sketch22.addGeometry(Part.ArcOfCircle(Part.Circle(V(184, -164, 0), V(0, 0, 1), 60), math.radians(-126), math.radians(-90)), False)
sketch22.addConstraint(Sketcher.Constraint("Coincident", 0, 2, 1, 1))
sketch22.addConstraint(Sketcher.Constraint("Coincident", 1, 2, 2, 1))
sketch22.addConstraint(Sketcher.Constraint("Tangent", 2, 2, 3, 2))
sketch22.addConstraint(Sketcher.Constraint("Tangent", 3, 1, 0, 1))
sketch22.addConstraint(Sketcher.Constraint("Vertical", 1))
sketch22.addConstraint(Sketcher.Constraint("Horizontal", 2))
sketch22.addConstraint(Sketcher.Constraint("PointOnObject", 0, 2, -2))
sketch22.addConstraint(Sketcher.Constraint("Radius", 3, Q("60 mm")))
sketch22.addConstraint(Sketcher.Constraint("DistanceX", 2, 1, 2, 2, Q("184 mm")))
sketch22.addConstraint(Sketcher.Constraint("DistanceY", 1, 2, 1, 1, Q("119 mm")))
sketch22.addConstraint(Sketcher.Constraint("DistanceY", 3, 3, -1, 1, Q("164 mm")))
pocket13 = body.newObject("PartDesign::Pocket", "Pocket012")
pocket13.Profile = sketch22
pocket13.Type = "ThroughAll"

# Sketch on XZ plane
sketch23 = body.newObject("Sketcher::SketchObject", "Sketch022")
sketch23.AttachmentSupport = (doc.getObject("XZ_Plane"), [""])
sketch23.MapMode = "FlatFace"
sketch23.AttachmentOffset = App.Placement(V(0, 0, 8), App.Rotation())
sketch23.addGeometry(Part.Circle(V(184, -164, 0), V(0, 0, 1), 20), False)
sketch23.addConstraint(Sketcher.Constraint("Diameter", 0, Q("40 mm")))
sketch23.addConstraint(Sketcher.Constraint("DistanceX", -1, 1, 0, 3, Q("184 mm")))
sketch23.addConstraint(Sketcher.Constraint("DistanceY", 0, 3, -1, 1, Q("164 mm")))
pocket14 = body.newObject("PartDesign::Pocket", "Pocket013")
pocket14.Profile = sketch23
pocket14.Type = "ThroughAll"

doc.recompute()
